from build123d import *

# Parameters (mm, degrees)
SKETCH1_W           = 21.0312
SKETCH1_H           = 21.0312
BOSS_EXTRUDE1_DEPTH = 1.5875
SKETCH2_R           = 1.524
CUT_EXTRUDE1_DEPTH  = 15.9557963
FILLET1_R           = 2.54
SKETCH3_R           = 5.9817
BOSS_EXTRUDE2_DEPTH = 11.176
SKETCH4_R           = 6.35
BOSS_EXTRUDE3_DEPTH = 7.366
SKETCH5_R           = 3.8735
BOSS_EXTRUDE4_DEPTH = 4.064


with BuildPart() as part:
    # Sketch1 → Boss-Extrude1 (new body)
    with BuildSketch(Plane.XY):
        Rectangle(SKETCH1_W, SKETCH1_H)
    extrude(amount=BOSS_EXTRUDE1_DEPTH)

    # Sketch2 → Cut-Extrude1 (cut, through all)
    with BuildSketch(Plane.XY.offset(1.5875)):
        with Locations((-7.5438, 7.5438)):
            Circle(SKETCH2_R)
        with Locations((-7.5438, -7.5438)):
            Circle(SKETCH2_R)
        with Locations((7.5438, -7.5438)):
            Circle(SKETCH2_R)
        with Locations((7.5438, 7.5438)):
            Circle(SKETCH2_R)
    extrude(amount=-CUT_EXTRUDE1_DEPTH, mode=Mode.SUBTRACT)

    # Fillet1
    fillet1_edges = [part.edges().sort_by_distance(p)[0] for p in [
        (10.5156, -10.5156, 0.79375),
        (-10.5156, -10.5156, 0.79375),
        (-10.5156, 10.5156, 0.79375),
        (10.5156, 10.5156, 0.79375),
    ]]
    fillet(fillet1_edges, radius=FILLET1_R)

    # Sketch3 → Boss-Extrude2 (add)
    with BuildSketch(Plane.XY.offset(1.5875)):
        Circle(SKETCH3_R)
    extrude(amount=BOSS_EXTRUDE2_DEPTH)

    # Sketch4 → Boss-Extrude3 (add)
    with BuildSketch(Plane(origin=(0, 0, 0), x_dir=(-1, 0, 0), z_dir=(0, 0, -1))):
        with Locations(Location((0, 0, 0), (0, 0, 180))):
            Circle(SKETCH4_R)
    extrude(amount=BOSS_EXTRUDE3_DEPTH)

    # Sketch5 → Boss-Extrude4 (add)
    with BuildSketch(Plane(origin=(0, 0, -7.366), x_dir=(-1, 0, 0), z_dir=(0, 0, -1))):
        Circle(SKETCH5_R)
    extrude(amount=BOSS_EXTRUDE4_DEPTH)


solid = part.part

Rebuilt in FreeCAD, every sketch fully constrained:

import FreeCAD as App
import Part
import Sketcher

V = App.Vector
Q = App.Units.Quantity


def edges_at(feature, points):
    """Names of the edges that pass closest to the given points."""
    edges = feature.Shape.Edges
    near = lambda p: min(range(len(edges)), key=lambda i: edges[i].distToShape(Part.Vertex(*p))[0])
    return sorted({f"Edge{near(p) + 1}" for p in points})


def add_polygon(sketch, points):
    """Adds a closed chain of lines whose ends are joined by coincident constraints."""
    first, n = sketch.GeometryCount, len(points)
    for a, b in zip(points, points[1:] + points[:1]):
        sketch.addGeometry(Part.LineSegment(App.Vector(*a, 0), App.Vector(*b, 0)), False)
    for i in range(n):
        sketch.addConstraint(Sketcher.Constraint("Coincident", first + i, 2, first + (i + 1) % n, 1))

doc = App.newDocument("Part")
body = doc.addObject("PartDesign::Body", "Body")

sketch1 = body.newObject("Sketcher::SketchObject", "Sketch")
sketch1.AttachmentSupport = (doc.getObject("XY_Plane"), [""])
sketch1.MapMode = "FlatFace"
add_polygon(sketch1, [(-11, 11), (-11, -11), (11, -11), (11, 11)])
sketch1.addConstraint([
    Sketcher.Constraint("Vertical", 0),
    Sketcher.Constraint("Horizontal", 1),
    Sketcher.Constraint("Vertical", 2),
    Sketcher.Constraint("Horizontal", 3),
    Sketcher.Constraint("Symmetric", 0, 2, 2, 2, -1, 1),
    Sketcher.Constraint("Equal", 3, 0),
    Sketcher.Constraint("DistanceX", 1, 1, 1, 2, Q("0.828 in")),
])
pad1 = body.newObject("PartDesign::Pad", "Pad")
pad1.Profile = sketch1
pad1.Length = Q("0.0625 in")

sketch2 = body.newObject("Sketcher::SketchObject", "Sketch001")
sketch2.AttachmentSupport = (doc.getObject("XY_Plane"), [""])
sketch2.MapMode = "FlatFace"
sketch2.AttachmentOffset = App.Placement(V(0, 0, 0.0625 * 25.4), App.Rotation())
sketch2.addGeometry([
    Part.Circle(V(-7.5, 7.5, 0), V(0, 0, 1), 1.5),
    Part.Circle(V(-7.5, -7.5, 0), V(0, 0, 1), 1.5),
    Part.Circle(V(7.5, -7.5, 0), V(0, 0, 1), 1.5),
    Part.Circle(V(7.5, 7.5, 0), V(0, 0, 1), 1.5),
], False)
sketch2.addConstraint([
    Sketcher.Constraint("Equal", 0, 1),
    Sketcher.Constraint("Equal", 1, 2),
    Sketcher.Constraint("Equal", 2, 3),
    Sketcher.Constraint("Symmetric", 0, 3, 2, 3, -1, 1),
    Sketcher.Constraint("Symmetric", 1, 3, 3, 3, -1, 1),
    Sketcher.Constraint("Symmetric", 1, 3, 2, 3, -2),
    Sketcher.Constraint("Diameter", 0, Q("0.12 in")),
    Sketcher.Constraint("DistanceX", 0, 3, -1, 1, Q("0.297 in")),
    Sketcher.Constraint("DistanceY", -1, 1, 0, 3, Q("0.297 in")),
])
pocket1 = body.newObject("PartDesign::Pocket", "Pocket")
pocket1.Profile = sketch2
pocket1.Type = "ThroughAll"
doc.recompute()

fillet = body.newObject("PartDesign::Fillet", "Fillet")
fillet.Base = (pocket1, edges_at(pocket1, [
    (10.516, -10.516, 0.794),
    (-10.516, -10.516, 0.794),
    (-10.516, 10.516, 0.794),
    (10.516, 10.516, 0.794),
]))
fillet.Radius = Q("0.1 in")

sketch3 = body.newObject("Sketcher::SketchObject", "Sketch002")
sketch3.AttachmentSupport = (doc.getObject("XY_Plane"), [""])
sketch3.MapMode = "FlatFace"
sketch3.AttachmentOffset = App.Placement(V(0, 0, 0.0625 * 25.4), App.Rotation())
sketch3.addGeometry(Part.Circle(V(0, 0, 0), V(0, 0, 1), 6), False)
sketch3.addConstraint([
    Sketcher.Constraint("Coincident", 0, 3, -1, 1),
    Sketcher.Constraint("Diameter", 0, Q("0.471 in")),
])
pad2 = body.newObject("PartDesign::Pad", "Pad001")
pad2.Profile = sketch3
pad2.Length = Q("0.44 in")

sketch4 = body.newObject("Sketcher::SketchObject", "Sketch003")
sketch4.AttachmentSupport = (doc.getObject("XY_Plane"), [""])
sketch4.MapMode = "FlatFace"
sketch4.addGeometry(Part.Circle(V(0, 0, 0), V(0, 0, 1), 6), False)
sketch4.addConstraint([
    Sketcher.Constraint("Coincident", 0, 3, -1, 1),
    Sketcher.Constraint("Diameter", 0, Q("0.5 in")),
])
pad3 = body.newObject("PartDesign::Pad", "Pad002")
pad3.Profile = sketch4
pad3.Length = Q("0.29 in")
pad3.Reversed = True

sketch5 = body.newObject("Sketcher::SketchObject", "Sketch004")
sketch5.AttachmentSupport = (doc.getObject("XY_Plane"), [""])
sketch5.MapMode = "FlatFace"
sketch5.AttachmentOffset = App.Placement(V(0, 0, -0.29 * 25.4), App.Rotation())
sketch5.addGeometry(Part.Circle(V(0, 0, 0), V(0, 0, 1), 3.9), False)
sketch5.addConstraint([
    Sketcher.Constraint("Coincident", 0, 3, -1, 1),
    Sketcher.Constraint("Diameter", 0, Q("0.305 in")),
])
pad4 = body.newObject("PartDesign::Pad", "Pad003")
pad4.Profile = sketch5
pad4.Length = Q("0.16 in")
pad4.Reversed = True

doc.recompute()
